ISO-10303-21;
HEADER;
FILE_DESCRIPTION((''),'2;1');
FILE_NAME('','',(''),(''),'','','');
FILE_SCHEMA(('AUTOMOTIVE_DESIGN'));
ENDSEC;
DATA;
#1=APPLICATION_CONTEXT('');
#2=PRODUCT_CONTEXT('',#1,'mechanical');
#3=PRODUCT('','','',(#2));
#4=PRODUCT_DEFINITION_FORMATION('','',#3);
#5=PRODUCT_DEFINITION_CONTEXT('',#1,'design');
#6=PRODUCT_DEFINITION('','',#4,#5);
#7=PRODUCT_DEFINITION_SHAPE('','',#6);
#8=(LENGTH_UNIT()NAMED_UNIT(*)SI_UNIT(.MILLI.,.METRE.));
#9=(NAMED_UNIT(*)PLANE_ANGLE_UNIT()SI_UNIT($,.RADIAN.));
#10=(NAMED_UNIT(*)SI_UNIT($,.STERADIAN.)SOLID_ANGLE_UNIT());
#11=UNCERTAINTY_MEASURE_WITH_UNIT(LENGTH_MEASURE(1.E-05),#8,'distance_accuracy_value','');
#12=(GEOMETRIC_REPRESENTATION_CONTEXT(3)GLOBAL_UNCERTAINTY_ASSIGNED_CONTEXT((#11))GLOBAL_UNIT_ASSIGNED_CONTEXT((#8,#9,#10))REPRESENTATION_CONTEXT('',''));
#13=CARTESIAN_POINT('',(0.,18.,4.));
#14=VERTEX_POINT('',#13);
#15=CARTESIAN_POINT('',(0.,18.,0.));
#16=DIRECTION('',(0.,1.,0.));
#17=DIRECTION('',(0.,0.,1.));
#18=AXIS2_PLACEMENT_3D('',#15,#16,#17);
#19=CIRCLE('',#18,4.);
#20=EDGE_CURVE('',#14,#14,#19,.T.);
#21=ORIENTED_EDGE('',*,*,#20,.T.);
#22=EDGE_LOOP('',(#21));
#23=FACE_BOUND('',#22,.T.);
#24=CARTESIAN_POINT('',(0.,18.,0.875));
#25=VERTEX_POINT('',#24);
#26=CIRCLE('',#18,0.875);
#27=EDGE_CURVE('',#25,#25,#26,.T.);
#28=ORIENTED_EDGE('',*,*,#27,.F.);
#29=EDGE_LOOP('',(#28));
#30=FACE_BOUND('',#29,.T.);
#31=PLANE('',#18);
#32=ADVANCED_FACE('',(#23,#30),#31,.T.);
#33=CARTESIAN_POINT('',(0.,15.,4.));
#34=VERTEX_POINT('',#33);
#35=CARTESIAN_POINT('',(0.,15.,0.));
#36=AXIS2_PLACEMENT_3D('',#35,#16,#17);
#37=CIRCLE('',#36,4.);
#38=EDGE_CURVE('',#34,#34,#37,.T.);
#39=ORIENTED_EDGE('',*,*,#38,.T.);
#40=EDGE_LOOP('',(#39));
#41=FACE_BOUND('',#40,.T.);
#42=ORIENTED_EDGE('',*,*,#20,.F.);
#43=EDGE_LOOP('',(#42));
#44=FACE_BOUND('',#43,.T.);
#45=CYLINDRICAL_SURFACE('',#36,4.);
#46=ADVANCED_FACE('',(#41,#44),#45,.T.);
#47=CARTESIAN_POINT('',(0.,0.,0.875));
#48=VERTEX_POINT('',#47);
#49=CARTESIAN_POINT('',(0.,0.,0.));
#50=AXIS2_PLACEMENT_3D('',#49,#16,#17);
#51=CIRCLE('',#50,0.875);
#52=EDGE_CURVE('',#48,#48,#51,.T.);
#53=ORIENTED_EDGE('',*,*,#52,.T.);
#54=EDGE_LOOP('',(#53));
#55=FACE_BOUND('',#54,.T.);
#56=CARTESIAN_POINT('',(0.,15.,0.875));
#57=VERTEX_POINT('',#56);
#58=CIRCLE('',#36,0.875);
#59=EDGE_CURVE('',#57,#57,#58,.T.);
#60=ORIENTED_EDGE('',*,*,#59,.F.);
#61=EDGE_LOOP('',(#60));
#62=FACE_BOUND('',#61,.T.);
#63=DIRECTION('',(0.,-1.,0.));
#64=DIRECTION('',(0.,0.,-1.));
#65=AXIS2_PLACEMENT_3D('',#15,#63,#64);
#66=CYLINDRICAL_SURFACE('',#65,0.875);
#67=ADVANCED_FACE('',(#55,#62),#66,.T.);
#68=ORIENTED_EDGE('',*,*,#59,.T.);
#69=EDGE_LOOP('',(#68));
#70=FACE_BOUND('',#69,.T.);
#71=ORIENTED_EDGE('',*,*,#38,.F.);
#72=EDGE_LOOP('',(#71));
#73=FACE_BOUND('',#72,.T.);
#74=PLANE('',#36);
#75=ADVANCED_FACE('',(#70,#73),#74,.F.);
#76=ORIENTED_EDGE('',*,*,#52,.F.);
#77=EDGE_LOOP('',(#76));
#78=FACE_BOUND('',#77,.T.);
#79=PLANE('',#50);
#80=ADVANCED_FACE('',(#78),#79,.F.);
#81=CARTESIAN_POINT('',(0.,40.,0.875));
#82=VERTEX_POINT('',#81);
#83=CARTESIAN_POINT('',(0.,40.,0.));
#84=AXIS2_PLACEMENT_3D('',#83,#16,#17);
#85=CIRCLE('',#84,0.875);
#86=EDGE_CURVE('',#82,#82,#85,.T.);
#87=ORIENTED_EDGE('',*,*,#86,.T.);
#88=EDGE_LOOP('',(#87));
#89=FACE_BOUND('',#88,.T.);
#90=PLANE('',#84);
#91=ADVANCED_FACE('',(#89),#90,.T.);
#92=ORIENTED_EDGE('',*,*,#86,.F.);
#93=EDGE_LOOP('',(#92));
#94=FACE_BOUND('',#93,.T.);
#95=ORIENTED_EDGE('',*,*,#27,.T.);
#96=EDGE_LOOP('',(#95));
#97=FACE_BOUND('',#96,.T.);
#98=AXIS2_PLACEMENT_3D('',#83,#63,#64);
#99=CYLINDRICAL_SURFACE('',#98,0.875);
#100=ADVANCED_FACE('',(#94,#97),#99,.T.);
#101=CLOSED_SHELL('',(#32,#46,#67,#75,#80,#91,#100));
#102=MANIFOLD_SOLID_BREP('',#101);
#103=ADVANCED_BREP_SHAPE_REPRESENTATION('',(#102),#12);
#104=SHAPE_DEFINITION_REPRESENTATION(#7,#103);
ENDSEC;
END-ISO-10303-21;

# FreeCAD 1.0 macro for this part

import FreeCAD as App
import Part
import Sketcher

V = App.Vector
Q = App.Units.Quantity

doc = App.newDocument("Part")
params = doc.addObject("Spreadsheet::Sheet", "Params")
for row, (alias, value) in enumerate([
    ("sketch1_diameter", "1.75 mm"),
    ("pad1_length", "18 mm"),
    ("sketch2_diameter", "8 mm"),
    ("pad2_length", "3 mm"),
    ("sketch3_diameter", "1.75 mm"),
    ("pad3_length", "22 mm"),
], start=1):
    params.set(f"A{row}", alias)
    params.set(f"B{row}", "=" + value)
    params.setAlias(f"B{row}", alias)

body = doc.addObject("PartDesign::Body", "Body")

sketch1 = body.newObject("Sketcher::SketchObject", "Sketch")
sketch1.AttachmentSupport = (doc.getObject("XZ_Plane"), [""])
sketch1.MapMode = "FlatFace"
sketch1.addGeometry(Part.Circle(V(0, 0, 0), V(0, 0, 1), 0.9), False)
sketch1.addConstraint(Sketcher.Constraint("Coincident", 0, 3, -1, 1))
sketch1.addConstraint(Sketcher.Constraint("Diameter", 0, Q("1.75 mm")))
sketch1.setExpression("Constraints[1]", "Params.sketch1_diameter")
pad1 = body.newObject("PartDesign::Pad", "Pad")
pad1.Profile = sketch1
pad1.setExpression("Length", "Params.pad1_length")
pad1.Reversed = True

sketch2 = body.newObject("Sketcher::SketchObject", "Sketch001")
sketch2.AttachmentSupport = (doc.getObject("XZ_Plane"), [""])
sketch2.MapMode = "FlatFace"
sketch2.AttachmentOffset = App.Placement(V(0, 0, -18), App.Rotation())
sketch2.addGeometry(Part.Circle(V(0, 0, 0), V(0, 0, 1), 4), False)
sketch2.addConstraint(Sketcher.Constraint("Coincident", 0, 3, -1, 1))
sketch2.addConstraint(Sketcher.Constraint("Diameter", 0, Q("8 mm")))
sketch2.setExpression("Constraints[1]", "Params.sketch2_diameter")
pad2 = body.newObject("PartDesign::Pad", "Pad001")
pad2.Profile = sketch2
pad2.setExpression("Length", "Params.pad2_length")

sketch3 = body.newObject("Sketcher::SketchObject", "Sketch002")
sketch3.AttachmentSupport = (doc.getObject("XZ_Plane"), [""])
sketch3.MapMode = "FlatFace"
sketch3.AttachmentOffset = App.Placement(V(0, 0, -18), App.Rotation())
sketch3.addGeometry(Part.Circle(V(0, 0, 0), V(0, 0, 1), 0.9), False)
sketch3.addConstraint(Sketcher.Constraint("Coincident", 0, 3, -1, 1))
sketch3.addConstraint(Sketcher.Constraint("Diameter", 0, Q("1.75 mm")))
sketch3.setExpression("Constraints[1]", "Params.sketch3_diameter")
pad3 = body.newObject("PartDesign::Pad", "Pad002")
pad3.Profile = sketch3
pad3.setExpression("Length", "Params.pad3_length")
pad3.Reversed = True

doc.recompute()
